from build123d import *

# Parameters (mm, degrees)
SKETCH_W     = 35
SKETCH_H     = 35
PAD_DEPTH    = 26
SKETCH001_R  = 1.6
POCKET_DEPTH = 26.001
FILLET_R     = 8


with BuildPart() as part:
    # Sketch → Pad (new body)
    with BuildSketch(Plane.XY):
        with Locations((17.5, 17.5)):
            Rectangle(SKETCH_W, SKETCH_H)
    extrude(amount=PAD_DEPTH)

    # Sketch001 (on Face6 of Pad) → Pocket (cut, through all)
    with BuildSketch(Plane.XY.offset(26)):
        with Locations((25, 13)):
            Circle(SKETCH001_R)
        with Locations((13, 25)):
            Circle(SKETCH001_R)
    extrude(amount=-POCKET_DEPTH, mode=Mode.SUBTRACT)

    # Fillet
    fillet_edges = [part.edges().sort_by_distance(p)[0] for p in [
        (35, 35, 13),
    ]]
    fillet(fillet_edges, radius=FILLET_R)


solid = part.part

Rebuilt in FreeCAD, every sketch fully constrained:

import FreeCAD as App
import Part
import Sketcher


def edges_at(feature, points):
    """Names of the edges that pass closest to the given points."""
    edges = feature.Shape.Edges
    near = lambda p: min(range(len(edges)), key=lambda i: edges[i].distToShape(Part.Vertex(*p))[0])
    return sorted({f"Edge{near(p) + 1}" for p in points})

doc = App.newDocument("Part")
params = doc.addObject("Spreadsheet::Sheet", "Params")
for row, (alias, value) in enumerate([
    ("sketch1_width", "35 mm"),
    ("pad1_length", "26 mm"),
    ("sketch2_diameter", "3.2 mm"),
    ("fillet_radius", "8 mm"),
], start=1):
    params.set(f"A{row}", alias)
    params.set(f"B{row}", "=" + value)
    params.setAlias(f"B{row}", alias)

body = doc.addObject("PartDesign::Body", "Body")

sketch1 = doc.addObject("Sketcher::SketchObject", "Sketch")
body.addObject(sketch1)
sketch1.AttachmentSupport = (doc.XY_Plane, [""])
sketch1.MapMode = "FlatFace"
sketch1.addGeometry([
    Part.LineSegment(App.Vector(0, 35, 0), App.Vector(0, 0, 0)),
    Part.LineSegment(App.Vector(0, 0, 0), App.Vector(35, 0, 0)),
    Part.LineSegment(App.Vector(35, 0, 0), App.Vector(35, 35, 0)),
    Part.LineSegment(App.Vector(35, 35, 0), App.Vector(0, 35, 0)),
], False)
sketch1.addConstraint([
    Sketcher.Constraint("Coincident", 0, 2, 1, 1),
    Sketcher.Constraint("Coincident", 1, 2, 2, 1),
    Sketcher.Constraint("Coincident", 2, 2, 3, 1),
    Sketcher.Constraint("Coincident", 3, 2, 0, 1),
    Sketcher.Constraint("Vertical", 0),
    Sketcher.Constraint("Horizontal", 1),
    Sketcher.Constraint("Vertical", 2),
    Sketcher.Constraint("Horizontal", 3),
    Sketcher.Constraint("Coincident", 0, 2, -1, 1),
    Sketcher.Constraint("Equal", 3, 0),
    Sketcher.Constraint("DistanceX", 1, 1, 1, 2, 35.0),
])
sketch1.setExpression("Constraints[10]", "Params.sketch1_width")
pad1 = doc.addObject("PartDesign::Pad", "Pad")
body.addObject(pad1)
pad1.Profile = sketch1
pad1.setExpression("Length", "Params.pad1_length")

sketch2 = doc.addObject("Sketcher::SketchObject", "Sketch001")
body.addObject(sketch2)
sketch2.AttachmentSupport = (doc.XY_Plane, [""])
sketch2.MapMode = "FlatFace"
sketch2.AttachmentOffset = App.Placement(App.Vector(0, 0, 26), App.Rotation())
sketch2.addGeometry([
    Part.Circle(App.Vector(25, 13, 0), App.Vector(0, 0, 1), 1.6),
    Part.Circle(App.Vector(13, 25, 0), App.Vector(0, 0, 1), 1.6),
], False)
sketch2.addConstraint([
    Sketcher.Constraint("Equal", 0, 1),
    Sketcher.Constraint("Diameter", 0, 3.2),
    Sketcher.Constraint("DistanceX", -1, 1, 0, 3, 25.0),
    Sketcher.Constraint("DistanceY", -1, 1, 0, 3, 13.0),
    Sketcher.Constraint("DistanceX", -1, 1, 1, 3, 13.0),
    Sketcher.Constraint("DistanceY", -1, 1, 1, 3, 25.0),
])
sketch2.setExpression("Constraints[1]", "Params.sketch2_diameter")
pocket1 = doc.addObject("PartDesign::Pocket", "Pocket")
body.addObject(pocket1)
pocket1.Profile = sketch2
pocket1.Type = "ThroughAll"
doc.recompute()

fillet = doc.addObject("PartDesign::Fillet", "Fillet")
body.addObject(fillet)
fillet.Base = (pocket1, edges_at(pocket1, [(35, 35, 13)]))
fillet.setExpression("Radius", "Params.fillet_radius")

doc.recompute()
